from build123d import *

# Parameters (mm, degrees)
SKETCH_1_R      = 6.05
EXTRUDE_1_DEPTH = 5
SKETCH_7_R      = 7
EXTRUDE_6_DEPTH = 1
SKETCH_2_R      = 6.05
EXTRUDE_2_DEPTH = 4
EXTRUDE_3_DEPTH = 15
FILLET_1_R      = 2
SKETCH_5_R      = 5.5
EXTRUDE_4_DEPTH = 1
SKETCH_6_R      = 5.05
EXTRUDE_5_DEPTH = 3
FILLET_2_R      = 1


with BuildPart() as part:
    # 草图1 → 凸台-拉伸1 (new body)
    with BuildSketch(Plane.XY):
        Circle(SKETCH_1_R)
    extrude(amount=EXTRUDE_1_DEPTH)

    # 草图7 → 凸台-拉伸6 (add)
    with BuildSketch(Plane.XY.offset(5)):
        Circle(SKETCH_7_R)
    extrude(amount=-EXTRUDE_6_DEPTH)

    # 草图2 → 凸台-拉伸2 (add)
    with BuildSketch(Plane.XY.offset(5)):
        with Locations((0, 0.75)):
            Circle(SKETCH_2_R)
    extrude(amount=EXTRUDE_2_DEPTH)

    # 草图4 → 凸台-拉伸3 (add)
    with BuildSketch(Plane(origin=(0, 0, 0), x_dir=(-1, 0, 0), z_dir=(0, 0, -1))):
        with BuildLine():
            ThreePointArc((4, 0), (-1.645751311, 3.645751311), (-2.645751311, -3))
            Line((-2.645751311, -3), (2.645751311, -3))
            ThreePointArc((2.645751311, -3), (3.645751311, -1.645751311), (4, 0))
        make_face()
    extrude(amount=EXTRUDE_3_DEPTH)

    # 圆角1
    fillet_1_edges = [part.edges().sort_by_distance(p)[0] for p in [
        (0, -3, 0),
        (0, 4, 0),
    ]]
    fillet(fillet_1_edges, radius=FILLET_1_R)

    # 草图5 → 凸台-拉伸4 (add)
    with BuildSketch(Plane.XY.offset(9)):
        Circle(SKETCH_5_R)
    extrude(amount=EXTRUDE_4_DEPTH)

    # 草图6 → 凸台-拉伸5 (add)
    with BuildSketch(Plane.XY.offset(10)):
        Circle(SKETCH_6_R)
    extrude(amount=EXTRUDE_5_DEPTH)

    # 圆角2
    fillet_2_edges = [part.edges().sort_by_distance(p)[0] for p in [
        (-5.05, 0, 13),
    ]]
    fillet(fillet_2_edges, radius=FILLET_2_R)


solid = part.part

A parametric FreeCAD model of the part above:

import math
import FreeCAD as App
import Part
import Sketcher
from FreeCAD import Vector


def edges_at(feature, points):
    """Names of the edges that pass closest to the given points."""
    edges = feature.Shape.Edges
    near = lambda p: min(range(len(edges)), key=lambda i: edges[i].distToShape(Part.Vertex(*p))[0])
    return sorted({f"Edge{near(p) + 1}" for p in points})

doc = App.newDocument("Part")
body = doc.addObject("PartDesign::Body", "Body")

sketch1 = doc.addObject("Sketcher::SketchObject", "Sketch")
body.addObject(sketch1)
sketch1.AttachmentSupport = (doc.XY_Plane, [""])
sketch1.MapMode = "FlatFace"
sketch1.addGeometry(Part.Circle(Vector(0, 0, 0), Vector(0, 0, 1), 6), False)
sketch1.addConstraint(Sketcher.Constraint("Coincident", 0, 3, -1, 1))
sketch1.addConstraint(Sketcher.Constraint("Diameter", 0, 12.1))
pad1 = doc.addObject("PartDesign::Pad", "Pad")
body.addObject(pad1)
pad1.Profile = sketch1
pad1.Length = 5

sketch2 = doc.addObject("Sketcher::SketchObject", "Sketch001")
body.addObject(sketch2)
sketch2.AttachmentSupport = (doc.XY_Plane, [""])
sketch2.MapMode = "FlatFace"
sketch2.AttachmentOffset = App.Placement(Vector(0, 0, 5), App.Rotation())
sketch2.addGeometry(Part.Circle(Vector(0, 0, 0), Vector(0, 0, 1), 7), False)
sketch2.addConstraint(Sketcher.Constraint("Coincident", 0, 3, -1, 1))
sketch2.addConstraint(Sketcher.Constraint("Diameter", 0, 14.0))
pad2 = doc.addObject("PartDesign::Pad", "Pad001")
body.addObject(pad2)
pad2.Profile = sketch2
pad2.Length = 1
pad2.Reversed = True

sketch3 = doc.addObject("Sketcher::SketchObject", "Sketch002")
body.addObject(sketch3)
sketch3.AttachmentSupport = (doc.XY_Plane, [""])
sketch3.MapMode = "FlatFace"
sketch3.AttachmentOffset = App.Placement(Vector(0, 0, 5), App.Rotation())
sketch3.addGeometry(Part.Circle(Vector(0, 1, 0), Vector(0, 0, 1), 6), False)
sketch3.addConstraint(Sketcher.Constraint("PointOnObject", 0, 3, -2))
sketch3.addConstraint(Sketcher.Constraint("Diameter", 0, 12.1))
sketch3.addConstraint(Sketcher.Constraint("DistanceY", -1, 1, 0, 3, 0.75))
pad3 = doc.addObject("PartDesign::Pad", "Pad002")
body.addObject(pad3)
pad3.Profile = sketch3
pad3.Length = 4

sketch4 = doc.addObject("Sketcher::SketchObject", "Sketch003")
body.addObject(sketch4)
sketch4.AttachmentSupport = (doc.XY_Plane, [""])
sketch4.MapMode = "FlatFace"
sketch4.addGeometry(Part.ArcOfCircle(Part.Circle(Vector(0, 0, 0), Vector(0, 0, 1), 4), math.radians(-49), math.radians(180)), False)
sketch4.addGeometry(Part.LineSegment(Vector(2.6, -3, 0), Vector(-2.6, -3, 0)), False)
sketch4.addGeometry(Part.ArcOfCircle(Part.Circle(Vector(0, 0, 0), Vector(0, 0, 1), 4), math.radians(180), math.radians(229)), False)
sketch4.addConstraint(Sketcher.Constraint("Coincident", 0, 1, 1, 1))
sketch4.addConstraint(Sketcher.Constraint("Coincident", 1, 2, 2, 2))
sketch4.addConstraint(Sketcher.Constraint("Tangent", 2, 1, 0, 2))
sketch4.addConstraint(Sketcher.Constraint("Horizontal", 1))
sketch4.addConstraint(Sketcher.Constraint("Coincident", 0, 3, -1, 1))
sketch4.addConstraint(Sketcher.Constraint("Equal", 0, 2))
sketch4.addConstraint(Sketcher.Constraint("PointOnObject", 2, 1, -1))
sketch4.addConstraint(Sketcher.Constraint("Radius", 0, 4.0))
sketch4.addConstraint(Sketcher.Constraint("DistanceY", 0, 1, -1, 1, 3.0))
pad4 = doc.addObject("PartDesign::Pad", "Pad003")
body.addObject(pad4)
pad4.Profile = sketch4
pad4.Length = 15
pad4.Reversed = True
doc.recompute()

fillet = doc.addObject("PartDesign::Fillet", "Fillet")
body.addObject(fillet)
fillet.Base = (pad4, edges_at(pad4, [(0, -3, 0), (1.646, 3.646, 0)]))
fillet.Radius = 2

sketch5 = doc.addObject("Sketcher::SketchObject", "Sketch004")
body.addObject(sketch5)
sketch5.AttachmentSupport = (doc.XY_Plane, [""])
sketch5.MapMode = "FlatFace"
sketch5.AttachmentOffset = App.Placement(Vector(0, 0, 9), App.Rotation())
sketch5.addGeometry(Part.Circle(Vector(0, 0, 0), Vector(0, 0, 1), 6), False)
sketch5.addConstraint(Sketcher.Constraint("Coincident", 0, 3, -1, 1))
sketch5.addConstraint(Sketcher.Constraint("Diameter", 0, 11.0))
pad5 = doc.addObject("PartDesign::Pad", "Pad004")
body.addObject(pad5)
pad5.Profile = sketch5
pad5.Length = 1

sketch6 = doc.addObject("Sketcher::SketchObject", "Sketch005")
body.addObject(sketch6)
sketch6.AttachmentSupport = (doc.XY_Plane, [""])
sketch6.MapMode = "FlatFace"
sketch6.AttachmentOffset = App.Placement(Vector(0, 0, 10), App.Rotation())
sketch6.addGeometry(Part.Circle(Vector(0, 0, 0), Vector(0, 0, 1), 5), False)
sketch6.addConstraint(Sketcher.Constraint("Coincident", 0, 3, -1, 1))
sketch6.addConstraint(Sketcher.Constraint("Diameter", 0, 10.1))
pad6 = doc.addObject("PartDesign::Pad", "Pad005")
body.addObject(pad6)
pad6.Profile = sketch6
pad6.Length = 3
doc.recompute()

fillet2 = doc.addObject("PartDesign::Fillet", "Fillet001")
body.addObject(fillet2)
fillet2.Base = (pad6, edges_at(pad6, [(-5.05, 0, 13)]))
fillet2.Radius = 1

doc.recompute()
